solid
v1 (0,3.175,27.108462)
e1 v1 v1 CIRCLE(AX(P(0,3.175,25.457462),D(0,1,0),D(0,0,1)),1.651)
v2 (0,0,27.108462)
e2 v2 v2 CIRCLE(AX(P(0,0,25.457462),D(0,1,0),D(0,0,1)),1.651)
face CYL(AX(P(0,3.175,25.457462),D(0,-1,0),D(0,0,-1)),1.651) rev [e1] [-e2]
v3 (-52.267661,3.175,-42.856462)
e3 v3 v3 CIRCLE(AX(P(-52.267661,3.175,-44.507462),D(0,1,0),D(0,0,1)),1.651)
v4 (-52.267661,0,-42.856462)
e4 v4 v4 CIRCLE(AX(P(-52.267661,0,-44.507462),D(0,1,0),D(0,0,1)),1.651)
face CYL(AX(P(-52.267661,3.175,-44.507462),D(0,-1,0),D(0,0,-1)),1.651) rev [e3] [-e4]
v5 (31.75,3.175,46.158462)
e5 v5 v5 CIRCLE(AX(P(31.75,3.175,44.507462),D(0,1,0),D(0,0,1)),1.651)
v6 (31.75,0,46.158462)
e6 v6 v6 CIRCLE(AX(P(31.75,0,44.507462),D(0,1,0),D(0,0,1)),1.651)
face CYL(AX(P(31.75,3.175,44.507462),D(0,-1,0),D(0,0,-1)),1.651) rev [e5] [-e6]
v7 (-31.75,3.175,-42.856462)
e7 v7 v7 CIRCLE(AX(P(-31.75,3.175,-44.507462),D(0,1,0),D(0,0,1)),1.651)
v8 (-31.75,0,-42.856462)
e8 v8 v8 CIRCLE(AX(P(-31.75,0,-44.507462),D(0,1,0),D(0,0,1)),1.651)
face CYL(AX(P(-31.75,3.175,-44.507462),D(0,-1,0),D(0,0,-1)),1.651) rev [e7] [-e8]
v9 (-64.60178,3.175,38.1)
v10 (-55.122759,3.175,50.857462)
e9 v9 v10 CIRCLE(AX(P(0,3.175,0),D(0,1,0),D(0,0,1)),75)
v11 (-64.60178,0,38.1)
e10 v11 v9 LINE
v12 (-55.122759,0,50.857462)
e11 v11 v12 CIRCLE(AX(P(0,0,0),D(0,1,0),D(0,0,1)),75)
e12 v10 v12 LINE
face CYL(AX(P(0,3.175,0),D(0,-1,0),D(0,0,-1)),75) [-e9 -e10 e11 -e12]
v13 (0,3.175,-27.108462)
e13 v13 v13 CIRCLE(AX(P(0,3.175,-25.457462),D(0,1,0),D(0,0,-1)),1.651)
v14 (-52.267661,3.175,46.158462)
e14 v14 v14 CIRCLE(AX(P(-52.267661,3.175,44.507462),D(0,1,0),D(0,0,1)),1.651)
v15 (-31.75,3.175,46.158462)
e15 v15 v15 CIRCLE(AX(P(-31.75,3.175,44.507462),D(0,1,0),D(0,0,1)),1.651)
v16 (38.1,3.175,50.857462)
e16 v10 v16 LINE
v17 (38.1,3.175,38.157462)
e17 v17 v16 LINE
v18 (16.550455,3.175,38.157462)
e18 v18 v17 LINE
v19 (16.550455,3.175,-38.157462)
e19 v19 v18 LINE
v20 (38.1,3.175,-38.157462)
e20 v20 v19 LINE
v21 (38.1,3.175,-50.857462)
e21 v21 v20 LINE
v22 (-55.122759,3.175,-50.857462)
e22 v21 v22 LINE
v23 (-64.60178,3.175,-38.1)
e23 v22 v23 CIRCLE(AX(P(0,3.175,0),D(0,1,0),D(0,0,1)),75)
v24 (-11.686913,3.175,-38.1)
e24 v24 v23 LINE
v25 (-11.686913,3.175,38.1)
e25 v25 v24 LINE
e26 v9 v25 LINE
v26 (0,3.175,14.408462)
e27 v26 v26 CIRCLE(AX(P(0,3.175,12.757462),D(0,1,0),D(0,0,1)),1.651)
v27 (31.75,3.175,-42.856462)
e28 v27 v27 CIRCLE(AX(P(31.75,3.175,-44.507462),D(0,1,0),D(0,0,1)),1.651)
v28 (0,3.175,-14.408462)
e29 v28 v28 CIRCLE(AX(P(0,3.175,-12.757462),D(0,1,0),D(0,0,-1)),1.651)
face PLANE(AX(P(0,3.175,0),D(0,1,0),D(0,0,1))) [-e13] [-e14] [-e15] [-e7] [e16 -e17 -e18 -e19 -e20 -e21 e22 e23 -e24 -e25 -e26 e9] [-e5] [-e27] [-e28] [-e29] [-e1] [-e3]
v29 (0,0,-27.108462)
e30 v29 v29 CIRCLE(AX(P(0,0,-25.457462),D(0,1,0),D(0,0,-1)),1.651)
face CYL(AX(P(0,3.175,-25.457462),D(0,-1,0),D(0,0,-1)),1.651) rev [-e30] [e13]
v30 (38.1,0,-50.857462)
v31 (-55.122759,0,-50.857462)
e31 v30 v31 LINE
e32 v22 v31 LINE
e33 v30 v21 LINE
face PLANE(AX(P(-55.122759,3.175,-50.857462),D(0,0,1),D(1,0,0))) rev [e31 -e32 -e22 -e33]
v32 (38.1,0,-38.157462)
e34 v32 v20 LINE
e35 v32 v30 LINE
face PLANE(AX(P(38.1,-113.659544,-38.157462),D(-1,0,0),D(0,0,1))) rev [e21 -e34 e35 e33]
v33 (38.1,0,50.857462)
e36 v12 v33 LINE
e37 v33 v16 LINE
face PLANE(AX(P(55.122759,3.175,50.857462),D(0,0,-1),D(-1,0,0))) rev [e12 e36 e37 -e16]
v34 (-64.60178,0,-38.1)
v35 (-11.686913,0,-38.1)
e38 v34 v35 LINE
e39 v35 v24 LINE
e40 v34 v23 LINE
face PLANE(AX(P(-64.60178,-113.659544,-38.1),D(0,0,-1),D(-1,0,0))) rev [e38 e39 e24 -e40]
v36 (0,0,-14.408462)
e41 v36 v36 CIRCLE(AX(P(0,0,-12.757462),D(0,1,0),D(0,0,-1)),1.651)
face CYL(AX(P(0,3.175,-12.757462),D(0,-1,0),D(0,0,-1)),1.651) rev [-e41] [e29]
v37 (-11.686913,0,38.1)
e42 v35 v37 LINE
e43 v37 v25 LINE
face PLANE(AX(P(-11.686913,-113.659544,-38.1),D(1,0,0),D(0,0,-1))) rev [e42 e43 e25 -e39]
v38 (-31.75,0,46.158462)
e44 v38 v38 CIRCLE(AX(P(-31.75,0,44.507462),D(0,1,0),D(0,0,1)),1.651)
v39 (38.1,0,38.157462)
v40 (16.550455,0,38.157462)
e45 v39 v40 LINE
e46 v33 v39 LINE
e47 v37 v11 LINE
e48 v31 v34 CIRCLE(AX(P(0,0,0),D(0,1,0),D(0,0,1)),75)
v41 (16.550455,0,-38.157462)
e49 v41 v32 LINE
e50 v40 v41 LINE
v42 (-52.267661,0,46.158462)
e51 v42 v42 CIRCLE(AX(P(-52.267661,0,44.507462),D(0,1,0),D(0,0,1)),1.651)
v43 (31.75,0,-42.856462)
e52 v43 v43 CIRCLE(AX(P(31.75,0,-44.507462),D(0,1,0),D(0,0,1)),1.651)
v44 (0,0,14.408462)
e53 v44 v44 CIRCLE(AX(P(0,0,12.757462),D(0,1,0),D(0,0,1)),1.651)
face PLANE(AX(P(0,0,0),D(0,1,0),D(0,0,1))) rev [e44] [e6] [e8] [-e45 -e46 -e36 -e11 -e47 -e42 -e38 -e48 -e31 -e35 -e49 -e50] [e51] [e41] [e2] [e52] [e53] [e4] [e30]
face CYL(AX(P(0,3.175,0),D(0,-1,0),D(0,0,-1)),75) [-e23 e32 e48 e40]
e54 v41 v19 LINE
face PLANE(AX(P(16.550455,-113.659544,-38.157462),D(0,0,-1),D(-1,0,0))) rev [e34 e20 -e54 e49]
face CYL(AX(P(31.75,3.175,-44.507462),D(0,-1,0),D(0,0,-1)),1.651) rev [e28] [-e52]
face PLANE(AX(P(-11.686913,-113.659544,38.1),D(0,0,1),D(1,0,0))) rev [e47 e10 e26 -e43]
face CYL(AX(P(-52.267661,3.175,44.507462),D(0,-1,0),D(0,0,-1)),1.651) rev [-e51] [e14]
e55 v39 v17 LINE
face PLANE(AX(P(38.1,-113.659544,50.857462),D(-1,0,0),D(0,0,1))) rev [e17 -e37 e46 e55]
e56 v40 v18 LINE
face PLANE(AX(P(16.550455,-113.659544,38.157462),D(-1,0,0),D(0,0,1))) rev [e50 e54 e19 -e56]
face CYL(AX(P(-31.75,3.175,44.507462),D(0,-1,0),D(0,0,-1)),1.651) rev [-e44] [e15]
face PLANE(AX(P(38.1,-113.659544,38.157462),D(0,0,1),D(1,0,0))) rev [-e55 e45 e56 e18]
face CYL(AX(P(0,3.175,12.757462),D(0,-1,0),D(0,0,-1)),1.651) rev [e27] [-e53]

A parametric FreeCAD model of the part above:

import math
import FreeCAD as App
import Part
import Sketcher
Q = App.Units.Quantity

doc = App.newDocument("Part")
body = doc.addObject("PartDesign::Body", "Body")

sketch1 = body.newObject("Sketcher::SketchObject", "Sketch")
sketch1.AttachmentSupport = (doc.getObject("XZ_Plane"), [""])
sketch1.MapMode = "FlatFace"
sketch1.addGeometry([
    Part.LineSegment(App.Vector(-73.916913, -12.7, 0), App.Vector(-73.916913, 12.7, 0)),
    Part.ArcOfCircle(Part.Circle(App.Vector(0, 0, 0), App.Vector(0, 0, 1), 75), math.radians(137.304692), math.radians(170.25094)),
    Part.LineSegment(App.Vector(-55.122759, 50.857462, 0), App.Vector(55.122759, 50.857462, 0)),
    Part.ArcOfCircle(Part.Circle(App.Vector(0, 0, 0), App.Vector(0, 0, 1), 75), math.radians(26.240546), math.radians(42.695308)),
    Part.ArcOfCircle(Part.Circle(App.Vector(86.032266, 0, 0), App.Vector(0, 0, 1), 38.1), math.radians(119.5), math.radians(240.5)),
    Part.ArcOfCircle(Part.Circle(App.Vector(0, 0, 0), App.Vector(0, 0, 1), 75), math.radians(-42.695308), math.radians(-26.240546)),
    Part.LineSegment(App.Vector(55.122759, -50.857462, 0), App.Vector(-55.122759, -50.857462, 0)),
    Part.ArcOfCircle(Part.Circle(App.Vector(0, 0, 0), App.Vector(0, 0, 1), 75), math.radians(-170.25094), math.radians(-137.304692)),
    Part.Circle(App.Vector(-52.267661, 44.507462, 0), App.Vector(0, 0, 1), 1.651),
    Part.Circle(App.Vector(-31.75, 44.507462, 0), App.Vector(0, 0, 1), 1.651),
    Part.Circle(App.Vector(0, 25.457462, 0), App.Vector(0, 0, 1), 1.651),
    Part.Circle(App.Vector(31.75, 44.507462, 0), App.Vector(0, 0, 1), 1.651),
    Part.Circle(App.Vector(0, 12.757462, 0), App.Vector(0, 0, 1), 1.651),
    Part.Circle(App.Vector(-52.267661, -44.507462, 0), App.Vector(0, 0, 1), 1.651),
    Part.Circle(App.Vector(-31.75, -44.507462, 0), App.Vector(0, 0, 1), 1.651),
    Part.Circle(App.Vector(0, -12.757462, 0), App.Vector(0, 0, 1), 1.651),
    Part.Circle(App.Vector(0, -25.457462, 0), App.Vector(0, 0, 1), 1.651),
    Part.Circle(App.Vector(31.75, -44.507462, 0), App.Vector(0, 0, 1), 1.651),
], False)
sketch1.addConstraint([
    Sketcher.Constraint("Coincident", 0, 2, 1, 2),
    Sketcher.Constraint("Coincident", 1, 1, 2, 1),
    Sketcher.Constraint("Coincident", 2, 2, 3, 2),
    Sketcher.Constraint("Coincident", 3, 1, 4, 1),
    Sketcher.Constraint("Coincident", 4, 2, 5, 2),
    Sketcher.Constraint("Coincident", 5, 1, 6, 1),
    Sketcher.Constraint("Coincident", 6, 2, 7, 2),
    Sketcher.Constraint("Coincident", 7, 1, 0, 1),
    Sketcher.Constraint("Vertical", 0),
    Sketcher.Constraint("Horizontal", 2),
    Sketcher.Constraint("Horizontal", 6),
    Sketcher.Constraint("Coincident", 1, 3, -1, 1),
    Sketcher.Constraint("Coincident", 3, 3, -1, 1),
    Sketcher.Constraint("Coincident", 5, 3, -1, 1),
    Sketcher.Constraint("Coincident", 7, 3, -1, 1),
    Sketcher.Constraint("Equal", 1, 3),
    Sketcher.Constraint("Equal", 3, 5),
    Sketcher.Constraint("Equal", 5, 7),
    Sketcher.Constraint("Equal", 8, 9),
    Sketcher.Constraint("Equal", 9, 10),
    Sketcher.Constraint("Equal", 10, 11),
    Sketcher.Constraint("Equal", 11, 12),
    Sketcher.Constraint("Equal", 12, 13),
    Sketcher.Constraint("Equal", 13, 14),
    Sketcher.Constraint("Equal", 14, 15),
    Sketcher.Constraint("Equal", 15, 16),
    Sketcher.Constraint("Equal", 16, 17),
    Sketcher.Constraint("Symmetric", 11, 3, 14, 3, -1, 1),
    Sketcher.Constraint("Symmetric", 12, 3, 15, 3, -1, 1),
    Sketcher.Constraint("Symmetric", 10, 3, 16, 3, -1, 1),
    Sketcher.Constraint("Symmetric", 9, 3, 17, 3, -1, 1),
    Sketcher.Constraint("Symmetric", 9, 3, 11, 3, -2),
    Sketcher.Constraint("Symmetric", 8, 3, 13, 3, -1),
    Sketcher.Constraint("PointOnObject", 4, 3, -1),
    Sketcher.Constraint("PointOnObject", 10, 3, -2),
    Sketcher.Constraint("PointOnObject", 12, 3, -2),
    Sketcher.Constraint("Horizontal", 8, 3, 9, 3),
    Sketcher.Constraint("Vertical", 2, 2, 5, 1),
    Sketcher.Constraint("Radius", 4, Q("1.5 in")),
    Sketcher.Constraint("Diameter", 8, Q("0.13 in")),
    Sketcher.Constraint("DistanceY", 0, 1, 0, 2, Q("1 in")),
    Sketcher.Constraint("DistanceY", 10, 3, 1, 1, Q("1 in")),
    Sketcher.Constraint("DistanceY", 12, 3, 10, 3, Q("0.5 in")),
    Sketcher.Constraint("DistanceX", 9, 3, -1, 1, Q("1.25 in")),
    Sketcher.Constraint("Radius", 1, 75.0),
    Sketcher.Constraint("DistanceY", 10, 3, 9, 3, Q("0.75 in")),
    Sketcher.Constraint("DistanceX", 2, 1, 2, 2, 110.245518),
    Sketcher.Constraint("DistanceX", 1, 1, 8, 3, 2.855099),
    Sketcher.Constraint("DistanceX", -1, 1, 3, 1, 67.270928),
])
pad1 = body.newObject("PartDesign::Pad", "Pad")
pad1.Profile = sketch1
pad1.Length = Q("0.125 in")
pad1.Reversed = True

sketch2 = body.newObject("Sketcher::SketchObject", "Sketch001")
sketch2.AttachmentSupport = (doc.getObject("XZ_Plane"), [""])
sketch2.MapMode = "FlatFace"
sketch2.addGeometry([
    Part.LineSegment(App.Vector(38.1, 38.157462, 0), App.Vector(38.1, 50.857462, 0)),
    Part.LineSegment(App.Vector(38.1, 50.857462, 0), App.Vector(55.122759, 50.857462, 0)),
    Part.ArcOfCircle(Part.Circle(App.Vector(0, 0, 0), App.Vector(0, 0, 1), 75), math.radians(26.240546), math.radians(42.695308)),
    Part.ArcOfCircle(Part.Circle(App.Vector(86.032266, 0, 0), App.Vector(0, 0, 1), 38.1), math.radians(119.5), math.radians(240.5)),
    Part.ArcOfCircle(Part.Circle(App.Vector(0, 0, 0), App.Vector(0, 0, 1), 75), math.radians(-42.695308), math.radians(-26.240546)),
    Part.LineSegment(App.Vector(55.122759, -50.857462, 0), App.Vector(38.1, -50.857462, 0)),
    Part.LineSegment(App.Vector(38.1, -50.857462, 0), App.Vector(38.1, -38.157462, 0)),
    Part.LineSegment(App.Vector(38.1, -38.157462, 0), App.Vector(16.550455, -38.157462, 0)),
    Part.LineSegment(App.Vector(16.550455, -38.157462, 0), App.Vector(16.550455, 38.157462, 0)),
    Part.LineSegment(App.Vector(16.550455, 38.157462, 0), App.Vector(38.1, 38.157462, 0)),
    Part.LineSegment(App.Vector(-11.686913, -38.1, 0), App.Vector(-64.60178, -38.1, 0)),
    Part.ArcOfCircle(Part.Circle(App.Vector(0, 0, 0), App.Vector(0, 0, 1), 75), math.radians(-170.25094), math.radians(-149.469298)),
    Part.LineSegment(App.Vector(-73.916913, -12.7, 0), App.Vector(-73.916913, 12.7, 0)),
    Part.ArcOfCircle(Part.Circle(App.Vector(0, 0, 0), App.Vector(0, 0, 1), 75), math.radians(149.469298), math.radians(170.25094)),
    Part.LineSegment(App.Vector(-64.60178, 38.1, 0), App.Vector(-11.686913, 38.1, 0)),
    Part.LineSegment(App.Vector(-11.686913, 38.1, 0), App.Vector(-11.686913, -38.1, 0)),
], False)
sketch2.addConstraint([
    Sketcher.Constraint("Coincident", 0, 2, 1, 1),
    Sketcher.Constraint("Coincident", 1, 2, 2, 2),
    Sketcher.Constraint("Coincident", 2, 1, 3, 1),
    Sketcher.Constraint("Coincident", 3, 2, 4, 2),
    Sketcher.Constraint("Coincident", 4, 1, 5, 1),
    Sketcher.Constraint("Coincident", 5, 2, 6, 1),
    Sketcher.Constraint("Coincident", 6, 2, 7, 1),
    Sketcher.Constraint("Coincident", 7, 2, 8, 1),
    Sketcher.Constraint("Coincident", 8, 2, 9, 1),
    Sketcher.Constraint("Coincident", 9, 2, 0, 1),
    Sketcher.Constraint("Coincident", 10, 2, 11, 2),
    Sketcher.Constraint("Coincident", 11, 1, 12, 1),
    Sketcher.Constraint("Coincident", 12, 2, 13, 2),
    Sketcher.Constraint("Coincident", 13, 1, 14, 1),
    Sketcher.Constraint("Coincident", 14, 2, 15, 1),
    Sketcher.Constraint("Coincident", 15, 2, 10, 1),
    Sketcher.Constraint("Vertical", 0),
    Sketcher.Constraint("Horizontal", 1),
    Sketcher.Constraint("Horizontal", 5),
    Sketcher.Constraint("Vertical", 6),
    Sketcher.Constraint("Horizontal", 7),
    Sketcher.Constraint("Vertical", 8),
    Sketcher.Constraint("Horizontal", 9),
    Sketcher.Constraint("Horizontal", 10),
    Sketcher.Constraint("Vertical", 12),
    Sketcher.Constraint("Horizontal", 14),
    Sketcher.Constraint("Vertical", 15),
    Sketcher.Constraint("Coincident", 2, 3, -1, 1),
    Sketcher.Constraint("Coincident", 4, 3, -1, 1),
    Sketcher.Constraint("Coincident", 11, 3, -1, 1),
    Sketcher.Constraint("Coincident", 13, 3, -1, 1),
    Sketcher.Constraint("Equal", 2, 4),
    Sketcher.Constraint("Equal", 4, 11),
    Sketcher.Constraint("Equal", 11, 13),
    Sketcher.Constraint("Symmetric", 0, 2, 5, 2, -1),
    Sketcher.Constraint("PointOnObject", 3, 3, -1),
    Sketcher.Constraint("Vertical", 10, 2, 13, 1),
    Sketcher.Constraint("Equal", 0, 6),
    Sketcher.Constraint("Radius", 3, Q("1.5 in")),
    Sketcher.Constraint("DistanceY", 12, 1, 12, 2, Q("1 in")),
    Sketcher.Constraint("DistanceY", 15, 2, 15, 1, Q("3 in")),
    Sketcher.Constraint("DistanceY", 0, 1, 0, 2, Q("0.5 in")),
    Sketcher.Constraint("DistanceX", -1, 1, 0, 2, Q("1.5 in")),
    Sketcher.Constraint("Radius", 2, 75.0),
    Sketcher.Constraint("DistanceX", 1, 1, 1, 2, 17.022759),
    Sketcher.Constraint("DistanceX", 7, 2, 7, 1, 21.549545),
    Sketcher.Constraint("DistanceX", 10, 2, 10, 1, 52.914867),
    Sketcher.Constraint("DistanceX", -1, 1, 2, 1, 67.270928),
])
pocket1 = body.newObject("PartDesign::Pocket", "Pocket")
pocket1.Profile = sketch2
pocket1.Length = Q("0.125 in")

doc.recompute()
